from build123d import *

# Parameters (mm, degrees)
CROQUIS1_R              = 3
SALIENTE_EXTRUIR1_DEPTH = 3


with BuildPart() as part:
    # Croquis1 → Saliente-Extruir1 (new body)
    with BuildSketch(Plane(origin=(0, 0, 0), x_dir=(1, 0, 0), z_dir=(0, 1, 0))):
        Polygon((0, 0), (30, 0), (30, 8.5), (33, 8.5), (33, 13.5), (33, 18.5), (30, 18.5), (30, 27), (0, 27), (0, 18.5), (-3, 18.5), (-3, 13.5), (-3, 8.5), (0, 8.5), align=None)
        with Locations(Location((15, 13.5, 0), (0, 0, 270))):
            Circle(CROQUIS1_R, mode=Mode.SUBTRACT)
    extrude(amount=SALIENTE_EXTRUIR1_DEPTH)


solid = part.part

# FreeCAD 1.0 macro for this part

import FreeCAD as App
import Part
import Sketcher

doc = App.newDocument("Part")
body = doc.addObject("PartDesign::Body", "Body")

sketch1 = body.newObject("Sketcher::SketchObject", "Sketch")
sketch1.AttachmentSupport = (doc.getObject("XZ_Plane"), [""])
sketch1.MapMode = "FlatFace"
sketch1.addGeometry([
    Part.LineSegment(App.Vector(0, 0, 0), App.Vector(30, 0, 0)),
    Part.LineSegment(App.Vector(30, 0, 0), App.Vector(30, -8.5, 0)),
    Part.LineSegment(App.Vector(30, -8.5, 0), App.Vector(33, -8.5, 0)),
    Part.LineSegment(App.Vector(33, -8.5, 0), App.Vector(33, -18.5, 0)),
    Part.LineSegment(App.Vector(33, -18.5, 0), App.Vector(30, -18.5, 0)),
    Part.LineSegment(App.Vector(30, -18.5, 0), App.Vector(30, -27, 0)),
    Part.LineSegment(App.Vector(30, -27, 0), App.Vector(0, -27, 0)),
    Part.LineSegment(App.Vector(0, -27, 0), App.Vector(0, -18.5, 0)),
    Part.LineSegment(App.Vector(0, -18.5, 0), App.Vector(-3, -18.5, 0)),
    Part.LineSegment(App.Vector(-3, -18.5, 0), App.Vector(-3, -8.5, 0)),
    Part.LineSegment(App.Vector(-3, -8.5, 0), App.Vector(0, -8.5, 0)),
    Part.LineSegment(App.Vector(0, -8.5, 0), App.Vector(0, 0, 0)),
    Part.Circle(App.Vector(15, -13.5, 0), App.Vector(0, 0, 1), 3),
], False)
sketch1.addConstraint([
    Sketcher.Constraint("Coincident", 0, 2, 1, 1),
    Sketcher.Constraint("Coincident", 1, 2, 2, 1),
    Sketcher.Constraint("Coincident", 2, 2, 3, 1),
    Sketcher.Constraint("Coincident", 3, 2, 4, 1),
    Sketcher.Constraint("Coincident", 4, 2, 5, 1),
    Sketcher.Constraint("Coincident", 5, 2, 6, 1),
    Sketcher.Constraint("Coincident", 6, 2, 7, 1),
    Sketcher.Constraint("Coincident", 7, 2, 8, 1),
    Sketcher.Constraint("Coincident", 8, 2, 9, 1),
    Sketcher.Constraint("Coincident", 9, 2, 10, 1),
    Sketcher.Constraint("Coincident", 10, 2, 11, 1),
    Sketcher.Constraint("Coincident", 11, 2, 0, 1),
    Sketcher.Constraint("Horizontal", 0),
    Sketcher.Constraint("Vertical", 1),
    Sketcher.Constraint("Horizontal", 2),
    Sketcher.Constraint("Vertical", 3),
    Sketcher.Constraint("Horizontal", 4),
    Sketcher.Constraint("Vertical", 5),
    Sketcher.Constraint("Horizontal", 6),
    Sketcher.Constraint("Vertical", 7),
    Sketcher.Constraint("Horizontal", 8),
    Sketcher.Constraint("Vertical", 9),
    Sketcher.Constraint("Horizontal", 10),
    Sketcher.Constraint("Vertical", 11),
    Sketcher.Constraint("Coincident", 11, 2, -1, 1),
    Sketcher.Constraint("PointOnObject", 6, 2, -2),
    Sketcher.Constraint("Horizontal", 4, 2, 7, 2),
    Sketcher.Constraint("Horizontal", 2, 2, 9, 2),
    Sketcher.Constraint("Vertical", 1, 2, 4, 2),
    Sketcher.Constraint("Equal", 4, 8),
    Sketcher.Constraint("Equal", 1, 5),
    Sketcher.Constraint("Diameter", 12, 6.0),
    Sketcher.Constraint("DistanceX", 0, 1, 0, 2, 30.0),
    Sketcher.Constraint("DistanceX", 2, 1, 2, 2, 3.0),
    Sketcher.Constraint("DistanceY", 3, 2, 3, 1, 10.0),
    Sketcher.Constraint("DistanceY", 1, 2, 1, 1, 8.5),
    Sketcher.Constraint("DistanceX", -1, 1, 12, 3, 15.0),
    Sketcher.Constraint("DistanceY", 12, 3, 1, 2, 5.0),
])
pad1 = body.newObject("PartDesign::Pad", "Pad")
pad1.Profile = sketch1
pad1.Length = 3
pad1.Reversed = True

doc.recompute()
